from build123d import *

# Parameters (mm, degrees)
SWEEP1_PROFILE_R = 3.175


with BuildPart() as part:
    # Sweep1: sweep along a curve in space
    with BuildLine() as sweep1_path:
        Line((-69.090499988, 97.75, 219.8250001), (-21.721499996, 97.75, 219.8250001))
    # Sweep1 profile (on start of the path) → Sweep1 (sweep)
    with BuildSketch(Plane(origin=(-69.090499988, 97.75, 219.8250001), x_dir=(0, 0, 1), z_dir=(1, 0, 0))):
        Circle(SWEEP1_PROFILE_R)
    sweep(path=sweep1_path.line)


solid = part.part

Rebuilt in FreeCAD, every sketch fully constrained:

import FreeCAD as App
import Part
import Sketcher
from FreeCAD import Vector
Q = App.Units.Quantity

doc = App.newDocument("Part")
body = doc.addObject("PartDesign::Body", "Body")

# Sketch on YZ plane
sketch1 = body.newObject("Sketcher::SketchObject", "Sketch")
sketch1.AttachmentSupport = (doc.getObject("YZ_Plane"), [""])
sketch1.MapMode = "FlatFace"
sketch1.AttachmentOffset = App.Placement(Vector(0, 0, -69.0905), App.Rotation())
sketch1.addGeometry(Part.Circle(Vector(97.8, 219.8, 0), Vector(0, 0, 1), 3.2), False)
sketch1.addConstraint(Sketcher.Constraint("Diameter", 0, Q("0.25 in")))
sketch1.addConstraint(Sketcher.Constraint("DistanceX", -1, 1, 0, 3, 97.75))
sketch1.addConstraint(Sketcher.Constraint("DistanceY", -1, 1, 0, 3, 219.825))

# Sketch on XY plane
sketch2 = body.newObject("Sketcher::SketchObject", "Sketch001")
sketch2.AttachmentSupport = (doc.getObject("XY_Plane"), [""])
sketch2.MapMode = "FlatFace"
sketch2.AttachmentOffset = App.Placement(Vector(0, 0, 219.825), App.Rotation())
sketch2.addGeometry(Part.LineSegment(Vector(-69, 98, 0), Vector(-22, 98, 0)), False)
sketch2.addConstraint(Sketcher.Constraint("Horizontal", 0))
sketch2.addConstraint(Sketcher.Constraint("DistanceX", 0, 1, 0, 2, 47.369))
sketch2.addConstraint(Sketcher.Constraint("DistanceX", 0, 1, -1, 1, 69.0905))
sketch2.addConstraint(Sketcher.Constraint("DistanceY", -1, 1, 0, 1, 97.75))
doc.recompute()

additivepipe = body.newObject("PartDesign::AdditivePipe", "AdditivePipe")
additivepipe.Profile = sketch1
additivepipe.Spine = (sketch2, ["Edge1"])

doc.recompute()
